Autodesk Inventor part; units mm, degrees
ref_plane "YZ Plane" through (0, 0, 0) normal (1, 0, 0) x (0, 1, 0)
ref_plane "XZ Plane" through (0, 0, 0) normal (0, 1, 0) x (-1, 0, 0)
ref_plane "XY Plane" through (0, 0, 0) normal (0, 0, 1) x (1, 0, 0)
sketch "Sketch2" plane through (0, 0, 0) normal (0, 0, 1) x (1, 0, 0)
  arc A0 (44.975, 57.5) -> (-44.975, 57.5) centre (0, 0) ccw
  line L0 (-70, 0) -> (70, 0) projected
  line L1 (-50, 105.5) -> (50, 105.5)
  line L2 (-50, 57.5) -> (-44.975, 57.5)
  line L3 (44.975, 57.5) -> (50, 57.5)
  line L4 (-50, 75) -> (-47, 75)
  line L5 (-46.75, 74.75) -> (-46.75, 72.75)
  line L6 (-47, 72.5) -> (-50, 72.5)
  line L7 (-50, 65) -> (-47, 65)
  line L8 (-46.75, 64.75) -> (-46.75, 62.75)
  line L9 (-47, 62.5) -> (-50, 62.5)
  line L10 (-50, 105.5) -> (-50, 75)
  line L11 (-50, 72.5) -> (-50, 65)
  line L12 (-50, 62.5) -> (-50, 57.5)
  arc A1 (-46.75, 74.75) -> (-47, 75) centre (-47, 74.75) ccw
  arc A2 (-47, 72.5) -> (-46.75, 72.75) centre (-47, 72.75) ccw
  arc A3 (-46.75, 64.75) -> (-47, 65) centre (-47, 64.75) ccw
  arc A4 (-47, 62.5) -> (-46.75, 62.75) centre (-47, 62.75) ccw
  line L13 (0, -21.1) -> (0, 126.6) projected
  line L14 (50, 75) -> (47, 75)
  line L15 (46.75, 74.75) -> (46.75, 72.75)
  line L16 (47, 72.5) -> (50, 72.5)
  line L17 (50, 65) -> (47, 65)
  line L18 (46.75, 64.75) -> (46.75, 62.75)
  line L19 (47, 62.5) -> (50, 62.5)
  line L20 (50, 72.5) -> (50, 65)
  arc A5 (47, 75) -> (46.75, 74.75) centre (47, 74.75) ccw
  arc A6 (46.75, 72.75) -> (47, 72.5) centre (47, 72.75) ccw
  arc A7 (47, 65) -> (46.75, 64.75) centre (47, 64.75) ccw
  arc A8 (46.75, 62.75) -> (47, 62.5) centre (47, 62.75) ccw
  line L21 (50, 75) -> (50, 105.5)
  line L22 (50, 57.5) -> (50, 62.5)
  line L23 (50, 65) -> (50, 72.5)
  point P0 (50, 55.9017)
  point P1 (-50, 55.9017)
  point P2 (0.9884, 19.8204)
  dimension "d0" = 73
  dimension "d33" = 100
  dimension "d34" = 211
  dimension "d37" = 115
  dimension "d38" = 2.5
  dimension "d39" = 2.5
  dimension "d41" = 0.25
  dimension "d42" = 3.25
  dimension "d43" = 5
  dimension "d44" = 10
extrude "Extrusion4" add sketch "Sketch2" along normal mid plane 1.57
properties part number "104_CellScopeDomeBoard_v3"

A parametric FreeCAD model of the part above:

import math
import FreeCAD as App
import Part
import Sketcher

V = App.Vector

doc = App.newDocument("Part")
body = doc.addObject("PartDesign::Body", "Body")

# Sketch on XY plane
sketch1 = body.newObject("Sketcher::SketchObject", "Sketch")
sketch1.AttachmentSupport = (doc.getObject("XY_Plane"), [""])
sketch1.MapMode = "FlatFace"
sketch1.addGeometry(Part.LineSegment(V(44.98, 57.5, 0), V(50, 57.5, 0)), False)
sketch1.addGeometry(Part.LineSegment(V(50, 57.5, 0), V(50, 62.5, 0)), False)
sketch1.addGeometry(Part.LineSegment(V(50, 62.5, 0), V(47, 62.5, 0)), False)
sketch1.addGeometry(Part.ArcOfCircle(Part.Circle(V(47, 62.75, 0), V(0, 0, 1), 0.25), math.radians(180), math.radians(270)), False)
sketch1.addGeometry(Part.LineSegment(V(46.75, 62.75, 0), V(46.75, 64.75, 0)), False)
sketch1.addGeometry(Part.ArcOfCircle(Part.Circle(V(47, 64.75, 0), V(0, 0, 1), 0.25), math.radians(90), math.radians(180)), False)
sketch1.addGeometry(Part.LineSegment(V(47, 65, 0), V(50, 65, 0)), False)
sketch1.addGeometry(Part.LineSegment(V(50, 65, 0), V(50, 72.5, 0)), False)
sketch1.addGeometry(Part.LineSegment(V(50, 72.5, 0), V(47, 72.5, 0)), False)
sketch1.addGeometry(Part.ArcOfCircle(Part.Circle(V(47, 72.75, 0), V(0, 0, 1), 0.25), math.radians(180), math.radians(270)), False)
sketch1.addGeometry(Part.LineSegment(V(46.75, 72.75, 0), V(46.75, 74.75, 0)), False)
sketch1.addGeometry(Part.ArcOfCircle(Part.Circle(V(47, 74.75, 0), V(0, 0, 1), 0.25), math.radians(90), math.radians(180)), False)
sketch1.addGeometry(Part.LineSegment(V(47, 75, 0), V(50, 75, 0)), False)
sketch1.addGeometry(Part.LineSegment(V(50, 75, 0), V(50, 105.5, 0)), False)
sketch1.addGeometry(Part.LineSegment(V(50, 105.5, 0), V(-50, 105.5, 0)), False)
sketch1.addGeometry(Part.LineSegment(V(-50, 105.5, 0), V(-50, 75, 0)), False)
sketch1.addGeometry(Part.LineSegment(V(-50, 75, 0), V(-47, 75, 0)), False)
sketch1.addGeometry(Part.ArcOfCircle(Part.Circle(V(-47, 74.75, 0), V(0, 0, 1), 0.25), math.radians(0), math.radians(90)), False)
sketch1.addGeometry(Part.LineSegment(V(-46.75, 74.75, 0), V(-46.75, 72.75, 0)), False)
sketch1.addGeometry(Part.ArcOfCircle(Part.Circle(V(-47, 72.75, 0), V(0, 0, 1), 0.25), math.radians(-90), math.radians(0)), False)
sketch1.addGeometry(Part.LineSegment(V(-47, 72.5, 0), V(-50, 72.5, 0)), False)
sketch1.addGeometry(Part.LineSegment(V(-50, 72.5, 0), V(-50, 65, 0)), False)
sketch1.addGeometry(Part.LineSegment(V(-50, 65, 0), V(-47, 65, 0)), False)
sketch1.addGeometry(Part.ArcOfCircle(Part.Circle(V(-47, 64.75, 0), V(0, 0, 1), 0.25), math.radians(0), math.radians(90)), False)
sketch1.addGeometry(Part.LineSegment(V(-46.75, 64.75, 0), V(-46.75, 62.75, 0)), False)
sketch1.addGeometry(Part.ArcOfCircle(Part.Circle(V(-47, 62.75, 0), V(0, 0, 1), 0.25), math.radians(-90), math.radians(0)), False)
sketch1.addGeometry(Part.LineSegment(V(-47, 62.5, 0), V(-50, 62.5, 0)), False)
sketch1.addGeometry(Part.LineSegment(V(-50, 62.5, 0), V(-50, 57.5, 0)), False)
sketch1.addGeometry(Part.LineSegment(V(-50, 57.5, 0), V(-44.98, 57.5, 0)), False)
sketch1.addGeometry(Part.ArcOfCircle(Part.Circle(V(0, 0, 0), V(0, 0, 1), 73), math.radians(52), math.radians(128)), False)
sketch1.addConstraint(Sketcher.Constraint("Coincident", 0, 2, 1, 1))
sketch1.addConstraint(Sketcher.Constraint("Coincident", 1, 2, 2, 1))
sketch1.addConstraint(Sketcher.Constraint("Tangent", 2, 2, 3, 2))
sketch1.addConstraint(Sketcher.Constraint("Tangent", 3, 1, 4, 1))
sketch1.addConstraint(Sketcher.Constraint("Tangent", 4, 2, 5, 2))
sketch1.addConstraint(Sketcher.Constraint("Tangent", 5, 1, 6, 1))
sketch1.addConstraint(Sketcher.Constraint("Coincident", 6, 2, 7, 1))
sketch1.addConstraint(Sketcher.Constraint("Coincident", 7, 2, 8, 1))
sketch1.addConstraint(Sketcher.Constraint("Tangent", 8, 2, 9, 2))
sketch1.addConstraint(Sketcher.Constraint("Tangent", 9, 1, 10, 1))
sketch1.addConstraint(Sketcher.Constraint("Tangent", 10, 2, 11, 2))
sketch1.addConstraint(Sketcher.Constraint("Tangent", 11, 1, 12, 1))
sketch1.addConstraint(Sketcher.Constraint("Coincident", 12, 2, 13, 1))
sketch1.addConstraint(Sketcher.Constraint("Coincident", 13, 2, 14, 1))
sketch1.addConstraint(Sketcher.Constraint("Coincident", 14, 2, 15, 1))
sketch1.addConstraint(Sketcher.Constraint("Coincident", 15, 2, 16, 1))
sketch1.addConstraint(Sketcher.Constraint("Tangent", 16, 2, 17, 2))
sketch1.addConstraint(Sketcher.Constraint("Tangent", 17, 1, 18, 1))
sketch1.addConstraint(Sketcher.Constraint("Tangent", 18, 2, 19, 2))
sketch1.addConstraint(Sketcher.Constraint("Tangent", 19, 1, 20, 1))
sketch1.addConstraint(Sketcher.Constraint("Coincident", 20, 2, 21, 1))
sketch1.addConstraint(Sketcher.Constraint("Coincident", 21, 2, 22, 1))
sketch1.addConstraint(Sketcher.Constraint("Tangent", 22, 2, 23, 2))
sketch1.addConstraint(Sketcher.Constraint("Tangent", 23, 1, 24, 1))
sketch1.addConstraint(Sketcher.Constraint("Tangent", 24, 2, 25, 2))
sketch1.addConstraint(Sketcher.Constraint("Tangent", 25, 1, 26, 1))
sketch1.addConstraint(Sketcher.Constraint("Coincident", 26, 2, 27, 1))
sketch1.addConstraint(Sketcher.Constraint("Coincident", 27, 2, 28, 1))
sketch1.addConstraint(Sketcher.Constraint("Coincident", 28, 2, 29, 2))
sketch1.addConstraint(Sketcher.Constraint("Coincident", 29, 1, 0, 1))
sketch1.addConstraint(Sketcher.Constraint("Horizontal", 0))
sketch1.addConstraint(Sketcher.Constraint("Vertical", 1))
sketch1.addConstraint(Sketcher.Constraint("Horizontal", 2))
sketch1.addConstraint(Sketcher.Constraint("Vertical", 4))
sketch1.addConstraint(Sketcher.Constraint("Horizontal", 6))
sketch1.addConstraint(Sketcher.Constraint("Vertical", 7))
sketch1.addConstraint(Sketcher.Constraint("Horizontal", 8))
sketch1.addConstraint(Sketcher.Constraint("Vertical", 10))
sketch1.addConstraint(Sketcher.Constraint("Horizontal", 12))
sketch1.addConstraint(Sketcher.Constraint("Vertical", 13))
sketch1.addConstraint(Sketcher.Constraint("Horizontal", 14))
sketch1.addConstraint(Sketcher.Constraint("Vertical", 15))
sketch1.addConstraint(Sketcher.Constraint("Horizontal", 16))
sketch1.addConstraint(Sketcher.Constraint("Vertical", 18))
sketch1.addConstraint(Sketcher.Constraint("Horizontal", 20))
sketch1.addConstraint(Sketcher.Constraint("Vertical", 21))
sketch1.addConstraint(Sketcher.Constraint("Horizontal", 22))
sketch1.addConstraint(Sketcher.Constraint("Vertical", 24))
sketch1.addConstraint(Sketcher.Constraint("Horizontal", 26))
sketch1.addConstraint(Sketcher.Constraint("Vertical", 27))
sketch1.addConstraint(Sketcher.Constraint("Horizontal", 28))
sketch1.addConstraint(Sketcher.Constraint("Coincident", 29, 3, -1, 1))
sketch1.addConstraint(Sketcher.Constraint("Equal", 3, 5))
sketch1.addConstraint(Sketcher.Constraint("Equal", 5, 9))
sketch1.addConstraint(Sketcher.Constraint("Equal", 9, 11))
sketch1.addConstraint(Sketcher.Constraint("Equal", 11, 17))
sketch1.addConstraint(Sketcher.Constraint("Equal", 17, 19))
sketch1.addConstraint(Sketcher.Constraint("Equal", 19, 23))
sketch1.addConstraint(Sketcher.Constraint("Equal", 23, 25))
sketch1.addConstraint(Sketcher.Constraint("Symmetric", 11, 3, 17, 3, -2))
sketch1.addConstraint(Sketcher.Constraint("Symmetric", 5, 3, 23, 3, -2))
sketch1.addConstraint(Sketcher.Constraint("Symmetric", 7, 2, 20, 2, -2))
sketch1.addConstraint(Sketcher.Constraint("Symmetric", 1, 2, 26, 2, -2))
sketch1.addConstraint(Sketcher.Constraint("Horizontal", 0, 2, 27, 2))
sketch1.addConstraint(Sketcher.Constraint("Vertical", 5, 3, 9, 3))
sketch1.addConstraint(Sketcher.Constraint("Vertical", 1, 2, 6, 2))
sketch1.addConstraint(Sketcher.Constraint("Vertical", 7, 2, 12, 2))
sketch1.addConstraint(Sketcher.Constraint("Vertical", 15, 2, 20, 2))
sketch1.addConstraint(Sketcher.Constraint("Equal", 4, 10))
sketch1.addConstraint(Sketcher.Constraint("Radius", 29, 73.0))
sketch1.addConstraint(Sketcher.Constraint("DistanceX", 14, 2, 14, 1, 100.0))
sketch1.addConstraint(Sketcher.Constraint("DistanceY", 1, 1, 1, 2, 5.0))
sketch1.addConstraint(Sketcher.Constraint("Radius", 3, 0.25))
sketch1.addConstraint(Sketcher.Constraint("DistanceY", 3, 3, 9, 3, 10.0))
sketch1.addConstraint(Sketcher.Constraint("DistanceY", 2, 2, 5, 1, 2.5))
sketch1.addConstraint(Sketcher.Constraint("DistanceX", 2, 2, 2, 1, 3.0))
sketch1.addConstraint(Sketcher.Constraint("DistanceY", 13, 1, 13, 2, 30.5))
sketch1.addConstraint(Sketcher.Constraint("DistanceY", -1, 1, 5, 1, 65.0))
pad1 = body.newObject("PartDesign::Pad", "Pad")
pad1.Profile = sketch1
pad1.Length = 1.57
pad1.Midplane = True

doc.recompute()
